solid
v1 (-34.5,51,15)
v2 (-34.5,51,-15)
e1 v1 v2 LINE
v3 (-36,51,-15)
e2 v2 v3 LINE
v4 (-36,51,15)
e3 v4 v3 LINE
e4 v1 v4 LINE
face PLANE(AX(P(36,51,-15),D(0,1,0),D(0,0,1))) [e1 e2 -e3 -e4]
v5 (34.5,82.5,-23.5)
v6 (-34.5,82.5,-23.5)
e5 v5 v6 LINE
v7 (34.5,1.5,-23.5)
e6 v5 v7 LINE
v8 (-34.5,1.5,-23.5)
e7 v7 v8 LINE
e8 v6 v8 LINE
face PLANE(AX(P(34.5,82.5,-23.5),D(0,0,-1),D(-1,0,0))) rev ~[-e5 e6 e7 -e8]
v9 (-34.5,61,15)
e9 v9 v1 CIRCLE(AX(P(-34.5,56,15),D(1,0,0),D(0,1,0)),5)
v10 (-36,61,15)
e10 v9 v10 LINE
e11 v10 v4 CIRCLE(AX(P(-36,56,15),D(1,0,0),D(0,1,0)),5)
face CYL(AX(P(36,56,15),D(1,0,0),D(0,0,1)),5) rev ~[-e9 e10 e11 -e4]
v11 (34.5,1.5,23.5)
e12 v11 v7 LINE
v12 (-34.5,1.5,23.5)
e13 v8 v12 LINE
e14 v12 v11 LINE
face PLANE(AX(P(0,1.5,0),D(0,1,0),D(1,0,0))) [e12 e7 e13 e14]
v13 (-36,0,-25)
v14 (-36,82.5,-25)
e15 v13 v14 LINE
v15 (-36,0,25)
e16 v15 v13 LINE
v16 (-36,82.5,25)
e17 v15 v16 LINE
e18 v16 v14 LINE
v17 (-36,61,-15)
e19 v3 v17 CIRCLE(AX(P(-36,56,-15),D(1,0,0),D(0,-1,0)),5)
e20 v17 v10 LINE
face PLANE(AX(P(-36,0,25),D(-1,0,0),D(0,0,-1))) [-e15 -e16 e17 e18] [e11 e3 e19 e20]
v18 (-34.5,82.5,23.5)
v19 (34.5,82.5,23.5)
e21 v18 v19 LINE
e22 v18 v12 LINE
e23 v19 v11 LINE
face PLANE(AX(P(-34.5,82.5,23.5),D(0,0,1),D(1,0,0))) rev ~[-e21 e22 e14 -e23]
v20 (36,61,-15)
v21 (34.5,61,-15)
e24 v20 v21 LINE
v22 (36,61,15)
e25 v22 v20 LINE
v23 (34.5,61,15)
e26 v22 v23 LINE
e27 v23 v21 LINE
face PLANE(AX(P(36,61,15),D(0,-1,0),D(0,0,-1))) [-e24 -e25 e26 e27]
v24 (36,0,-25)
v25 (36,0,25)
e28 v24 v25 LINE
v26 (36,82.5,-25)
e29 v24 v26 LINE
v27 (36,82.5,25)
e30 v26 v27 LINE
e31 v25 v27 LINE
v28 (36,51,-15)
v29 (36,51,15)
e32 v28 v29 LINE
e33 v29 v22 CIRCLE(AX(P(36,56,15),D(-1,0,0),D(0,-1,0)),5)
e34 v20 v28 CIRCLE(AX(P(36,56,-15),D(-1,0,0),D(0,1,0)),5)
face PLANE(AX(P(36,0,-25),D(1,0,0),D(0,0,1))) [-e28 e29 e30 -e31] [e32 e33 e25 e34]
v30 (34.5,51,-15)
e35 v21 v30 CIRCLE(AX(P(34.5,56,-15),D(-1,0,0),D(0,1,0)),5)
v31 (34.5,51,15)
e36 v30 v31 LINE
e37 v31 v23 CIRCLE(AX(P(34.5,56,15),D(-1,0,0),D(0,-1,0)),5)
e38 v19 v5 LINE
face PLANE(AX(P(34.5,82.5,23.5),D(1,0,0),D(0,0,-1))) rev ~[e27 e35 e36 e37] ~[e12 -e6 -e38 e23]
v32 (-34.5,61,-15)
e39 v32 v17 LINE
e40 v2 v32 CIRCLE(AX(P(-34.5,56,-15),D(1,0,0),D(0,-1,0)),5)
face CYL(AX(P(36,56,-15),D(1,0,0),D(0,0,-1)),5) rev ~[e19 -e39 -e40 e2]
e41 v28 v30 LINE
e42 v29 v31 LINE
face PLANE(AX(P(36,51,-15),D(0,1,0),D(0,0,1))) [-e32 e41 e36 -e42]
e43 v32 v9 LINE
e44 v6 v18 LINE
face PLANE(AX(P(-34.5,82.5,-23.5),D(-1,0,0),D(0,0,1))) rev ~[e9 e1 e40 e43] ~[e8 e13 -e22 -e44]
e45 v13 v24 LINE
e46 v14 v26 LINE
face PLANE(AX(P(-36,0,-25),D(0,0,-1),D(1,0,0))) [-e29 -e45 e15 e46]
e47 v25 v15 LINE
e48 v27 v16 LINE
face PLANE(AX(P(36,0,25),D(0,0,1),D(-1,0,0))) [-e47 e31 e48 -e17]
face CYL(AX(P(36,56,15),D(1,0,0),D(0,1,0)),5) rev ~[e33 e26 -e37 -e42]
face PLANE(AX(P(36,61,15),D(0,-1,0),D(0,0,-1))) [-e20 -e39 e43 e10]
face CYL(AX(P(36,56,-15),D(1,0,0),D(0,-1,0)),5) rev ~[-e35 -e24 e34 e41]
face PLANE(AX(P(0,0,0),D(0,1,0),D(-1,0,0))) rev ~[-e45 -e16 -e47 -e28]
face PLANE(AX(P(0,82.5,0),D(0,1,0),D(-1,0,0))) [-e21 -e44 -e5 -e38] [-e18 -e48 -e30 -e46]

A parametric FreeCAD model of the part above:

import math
import FreeCAD as App
import Part
import Sketcher

V = App.Vector

doc = App.newDocument("Part")
body = doc.addObject("PartDesign::Body", "Body")

sketch1 = body.newObject("Sketcher::SketchObject", "Sketch")
sketch1.AttachmentSupport = (doc.getObject("XZ_Plane"), [""])
sketch1.MapMode = "FlatFace"
sketch1.addGeometry(Part.LineSegment(V(36, -25, 0), V(-36, -25, 0)), False)
sketch1.addGeometry(Part.LineSegment(V(-36, -25, 0), V(-36, 25, 0)), False)
sketch1.addGeometry(Part.LineSegment(V(-36, 25, 0), V(36, 25, 0)), False)
sketch1.addGeometry(Part.LineSegment(V(36, 25, 0), V(36, -25, 0)), False)
sketch1.addConstraint(Sketcher.Constraint("Coincident", 0, 2, 1, 1))
sketch1.addConstraint(Sketcher.Constraint("Coincident", 1, 2, 2, 1))
sketch1.addConstraint(Sketcher.Constraint("Coincident", 2, 2, 3, 1))
sketch1.addConstraint(Sketcher.Constraint("Coincident", 3, 2, 0, 1))
sketch1.addConstraint(Sketcher.Constraint("Horizontal", 0))
sketch1.addConstraint(Sketcher.Constraint("Vertical", 1))
sketch1.addConstraint(Sketcher.Constraint("Horizontal", 2))
sketch1.addConstraint(Sketcher.Constraint("Vertical", 3))
sketch1.addConstraint(Sketcher.Constraint("Symmetric", 0, 2, 2, 2, -1, 1))
sketch1.addConstraint(Sketcher.Constraint("DistanceX", 0, 2, 0, 1, 72.0))
sketch1.addConstraint(Sketcher.Constraint("DistanceY", 1, 1, 1, 2, 50.0))
pad1 = body.newObject("PartDesign::Pad", "Pad")
pad1.Profile = sketch1
pad1.Length = 82.5
pad1.Reversed = True

sketch2 = body.newObject("Sketcher::SketchObject", "Sketch001")
sketch2.AttachmentSupport = (doc.getObject("XZ_Plane"), [""])
sketch2.MapMode = "FlatFace"
sketch2.AttachmentOffset = App.Placement(V(0, 0, -82.5), App.Rotation())
sketch2.addGeometry(Part.LineSegment(V(-34.5, -23.5, 0), V(-34.5, 23.5, 0)), False)
sketch2.addGeometry(Part.LineSegment(V(-34.5, 23.5, 0), V(34.5, 23.5, 0)), False)
sketch2.addGeometry(Part.LineSegment(V(34.5, 23.5, 0), V(34.5, -23.5, 0)), False)
sketch2.addGeometry(Part.LineSegment(V(34.5, -23.5, 0), V(-34.5, -23.5, 0)), False)
sketch2.addConstraint(Sketcher.Constraint("Coincident", 0, 2, 1, 1))
sketch2.addConstraint(Sketcher.Constraint("Coincident", 1, 2, 2, 1))
sketch2.addConstraint(Sketcher.Constraint("Coincident", 2, 2, 3, 1))
sketch2.addConstraint(Sketcher.Constraint("Coincident", 3, 2, 0, 1))
sketch2.addConstraint(Sketcher.Constraint("Vertical", 0))
sketch2.addConstraint(Sketcher.Constraint("Horizontal", 1))
sketch2.addConstraint(Sketcher.Constraint("Vertical", 2))
sketch2.addConstraint(Sketcher.Constraint("Horizontal", 3))
sketch2.addConstraint(Sketcher.Constraint("Symmetric", 0, 2, 2, 2, -1, 1))
sketch2.addConstraint(Sketcher.Constraint("DistanceX", 1, 1, 1, 2, 69.0))
sketch2.addConstraint(Sketcher.Constraint("DistanceY", 0, 1, 0, 2, 47.0))
pocket1 = body.newObject("PartDesign::Pocket", "Pocket")
pocket1.Profile = sketch2
pocket1.Length = 81
pocket1.Reversed = True

sketch3 = body.newObject("Sketcher::SketchObject", "Sketch002")
sketch3.AttachmentSupport = (doc.getObject("YZ_Plane"), [""])
sketch3.MapMode = "FlatFace"
sketch3.AttachmentOffset = App.Placement(V(0, 0, 36), App.Rotation())
sketch3.addGeometry(Part.LineSegment(V(61, -15, 0), V(61, 15, 0)), False)
sketch3.addGeometry(Part.ArcOfCircle(Part.Circle(V(56, 15, 0), V(0, 0, 1), 5), math.radians(0), math.radians(180)), False)
sketch3.addGeometry(Part.LineSegment(V(51, 15, 0), V(51, -15, 0)), False)
sketch3.addGeometry(Part.ArcOfCircle(Part.Circle(V(56, -15, 0), V(0, 0, 1), 5), math.radians(180), math.radians(360)), False)
sketch3.addConstraint(Sketcher.Constraint("Tangent", 0, 2, 1, 1))
sketch3.addConstraint(Sketcher.Constraint("Tangent", 1, 2, 2, 1))
sketch3.addConstraint(Sketcher.Constraint("Tangent", 2, 2, 3, 1))
sketch3.addConstraint(Sketcher.Constraint("Tangent", 3, 2, 0, 1))
sketch3.addConstraint(Sketcher.Constraint("Vertical", 0))
sketch3.addConstraint(Sketcher.Constraint("Vertical", 2))
sketch3.addConstraint(Sketcher.Constraint("Radius", 1, 5.0))
sketch3.addConstraint(Sketcher.Constraint("DistanceY", 0, 1, 0, 2, 30.0))
sketch3.addConstraint(Sketcher.Constraint("DistanceX", -1, 1, 1, 3, 56.0))
sketch3.addConstraint(Sketcher.Constraint("DistanceY", -1, 1, 1, 3, 15.0))
pocket2 = body.newObject("PartDesign::Pocket", "Pocket001")
pocket2.Profile = sketch3
pocket2.Type = "ThroughAll"

doc.recompute()
